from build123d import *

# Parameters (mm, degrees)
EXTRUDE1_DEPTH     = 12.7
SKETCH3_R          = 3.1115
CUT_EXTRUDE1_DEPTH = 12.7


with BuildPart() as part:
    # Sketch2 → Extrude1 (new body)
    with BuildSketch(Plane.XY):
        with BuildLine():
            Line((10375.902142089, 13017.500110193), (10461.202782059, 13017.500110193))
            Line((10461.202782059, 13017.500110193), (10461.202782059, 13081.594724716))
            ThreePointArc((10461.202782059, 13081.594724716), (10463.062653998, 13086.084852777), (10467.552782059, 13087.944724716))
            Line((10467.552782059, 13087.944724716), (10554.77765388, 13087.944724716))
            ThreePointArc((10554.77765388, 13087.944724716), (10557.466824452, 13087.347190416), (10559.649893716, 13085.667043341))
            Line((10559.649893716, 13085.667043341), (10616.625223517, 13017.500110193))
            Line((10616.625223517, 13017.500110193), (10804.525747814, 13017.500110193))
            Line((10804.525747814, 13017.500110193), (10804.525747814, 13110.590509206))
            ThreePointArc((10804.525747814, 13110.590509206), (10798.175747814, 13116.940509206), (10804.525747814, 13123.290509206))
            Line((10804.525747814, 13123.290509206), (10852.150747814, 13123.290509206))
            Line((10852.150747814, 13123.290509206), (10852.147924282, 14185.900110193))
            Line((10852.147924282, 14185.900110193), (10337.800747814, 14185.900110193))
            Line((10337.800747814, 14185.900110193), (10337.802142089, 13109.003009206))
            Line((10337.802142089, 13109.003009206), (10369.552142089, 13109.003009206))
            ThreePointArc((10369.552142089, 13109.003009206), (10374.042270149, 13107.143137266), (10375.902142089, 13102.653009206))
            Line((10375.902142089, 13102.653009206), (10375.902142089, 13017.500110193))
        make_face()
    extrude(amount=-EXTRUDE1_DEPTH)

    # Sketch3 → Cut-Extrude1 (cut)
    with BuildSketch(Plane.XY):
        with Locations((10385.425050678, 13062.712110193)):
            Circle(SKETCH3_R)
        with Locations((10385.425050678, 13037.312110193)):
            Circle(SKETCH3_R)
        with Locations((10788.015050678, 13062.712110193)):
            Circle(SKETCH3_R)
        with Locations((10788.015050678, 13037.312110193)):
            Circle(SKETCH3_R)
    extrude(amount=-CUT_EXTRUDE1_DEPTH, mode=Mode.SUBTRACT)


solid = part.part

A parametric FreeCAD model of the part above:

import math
import FreeCAD as App
import Part
import Sketcher
from FreeCAD import Vector
Q = App.Units.Quantity

doc = App.newDocument("Part")
body = doc.addObject("PartDesign::Body", "Body")

# Sketch on XY plane
sketch1 = body.newObject("Sketcher::SketchObject", "Sketch")
sketch1.AttachmentSupport = (doc.getObject("XY_Plane"), [""])
sketch1.MapMode = "FlatFace"
sketch1.addGeometry(Part.LineSegment(Vector(10375.902142, 13017.50011, 0), Vector(10461.202782, 13017.50011, 0)), False)
sketch1.addGeometry(Part.LineSegment(Vector(10461.202782, 13017.50011, 0), Vector(10461.202782, 13081.594725, 0)), False)
sketch1.addGeometry(Part.ArcOfCircle(Part.Circle(Vector(10467.552782, 13081.594725, 0), Vector(0, 0, 1), 6.35), math.radians(90), math.radians(180)), False)
sketch1.addGeometry(Part.LineSegment(Vector(10467.552782, 13087.944725, 0), Vector(10554.777654, 13087.944725, 0)), False)
sketch1.addGeometry(Part.ArcOfCircle(Part.Circle(Vector(10554.777654, 13081.594725, 0), Vector(0, 0, 1), 6.35), math.radians(39.889574), math.radians(90)), False)
sketch1.addGeometry(Part.LineSegment(Vector(10559.649894, 13085.667043, 0), Vector(10616.625224, 13017.50011, 0)), False)
sketch1.addGeometry(Part.LineSegment(Vector(10616.625224, 13017.50011, 0), Vector(10804.525748, 13017.50011, 0)), False)
sketch1.addGeometry(Part.LineSegment(Vector(10804.525748, 13017.50011, 0), Vector(10804.525748, 13110.590509, 0)), False)
sketch1.addGeometry(Part.ArcOfCircle(Part.Circle(Vector(10804.525748, 13116.940509, 0), Vector(0, 0, 1), 6.35), math.radians(90), math.radians(270)), False)
sketch1.addGeometry(Part.LineSegment(Vector(10804.525748, 13123.290509, 0), Vector(10852.150748, 13123.290509, 0)), False)
sketch1.addGeometry(Part.LineSegment(Vector(10852.150748, 13123.290509, 0), Vector(10852.147924, 14185.90011, 0)), False)
sketch1.addGeometry(Part.LineSegment(Vector(10852.147924, 14185.90011, 0), Vector(10337.800748, 14185.90011, 0)), False)
sketch1.addGeometry(Part.LineSegment(Vector(10337.800748, 14185.90011, 0), Vector(10337.802142, 13109.003009, 0)), False)
sketch1.addGeometry(Part.LineSegment(Vector(10337.802142, 13109.003009, 0), Vector(10369.552142, 13109.003009, 0)), False)
sketch1.addGeometry(Part.ArcOfCircle(Part.Circle(Vector(10369.552142, 13102.653009, 0), Vector(0, 0, 1), 6.35), math.radians(0), math.radians(90)), False)
sketch1.addGeometry(Part.LineSegment(Vector(10375.902142, 13102.653009, 0), Vector(10375.902142, 13017.50011, 0)), False)
sketch1.addConstraint(Sketcher.Constraint("Coincident", 0, 2, 1, 1))
sketch1.addConstraint(Sketcher.Constraint("Coincident", 1, 2, 2, 2))
sketch1.addConstraint(Sketcher.Constraint("Coincident", 2, 1, 3, 1))
sketch1.addConstraint(Sketcher.Constraint("Coincident", 3, 2, 4, 2))
sketch1.addConstraint(Sketcher.Constraint("Coincident", 4, 1, 5, 1))
sketch1.addConstraint(Sketcher.Constraint("Coincident", 5, 2, 6, 1))
sketch1.addConstraint(Sketcher.Constraint("Coincident", 6, 2, 7, 1))
sketch1.addConstraint(Sketcher.Constraint("Coincident", 7, 2, 8, 2))
sketch1.addConstraint(Sketcher.Constraint("Coincident", 8, 1, 9, 1))
sketch1.addConstraint(Sketcher.Constraint("Coincident", 9, 2, 10, 1))
sketch1.addConstraint(Sketcher.Constraint("Coincident", 10, 2, 11, 1))
sketch1.addConstraint(Sketcher.Constraint("Coincident", 11, 2, 12, 1))
sketch1.addConstraint(Sketcher.Constraint("Coincident", 12, 2, 13, 1))
sketch1.addConstraint(Sketcher.Constraint("Coincident", 13, 2, 14, 2))
sketch1.addConstraint(Sketcher.Constraint("Coincident", 14, 1, 15, 1))
sketch1.addConstraint(Sketcher.Constraint("Coincident", 15, 2, 0, 1))
sketch1.addConstraint(Sketcher.Constraint("Horizontal", 0))
sketch1.addConstraint(Sketcher.Constraint("Vertical", 1))
sketch1.addConstraint(Sketcher.Constraint("Horizontal", 3))
sketch1.addConstraint(Sketcher.Constraint("Horizontal", 6))
sketch1.addConstraint(Sketcher.Constraint("Vertical", 7))
sketch1.addConstraint(Sketcher.Constraint("Horizontal", 9))
sketch1.addConstraint(Sketcher.Constraint("Horizontal", 11))
sketch1.addConstraint(Sketcher.Constraint("Horizontal", 13))
sketch1.addConstraint(Sketcher.Constraint("Vertical", 15))
sketch1.addConstraint(Sketcher.Constraint("Radius", 2, Q("0.25 in")))
sketch1.addConstraint(Sketcher.Constraint("Radius", 4, Q("0.25 in")))
sketch1.addConstraint(Sketcher.Constraint("Radius", 8, Q("0.25 in")))
sketch1.addConstraint(Sketcher.Constraint("Radius", 14, Q("0.25 in")))
sketch1.addConstraint(Sketcher.Constraint("DistanceX", 13, 1, 13, 2, Q("1.25 in")))
sketch1.addConstraint(Sketcher.Constraint("DistanceX", 12, 2, 14, 1, Q("1.5 in")))
sketch1.addConstraint(Sketcher.Constraint("DistanceX", 9, 1, 9, 2, Q("1.875 in")))
sketch1.addConstraint(Sketcher.Constraint("DistanceX", 1, 2, 2, 1, Q("0.25 in")))
sketch1.addConstraint(Sketcher.Constraint("DistanceY", 1, 2, 2, 1, Q("0.25 in")))
sketch1.addConstraint(Sketcher.Constraint("DistanceY", 14, 1, 13, 2, Q("0.25 in")))
sketch1.addConstraint(Sketcher.Constraint("DistanceY", 14, 3, 8, 3, Q("0.5625 in")))
sketch1.addConstraint(Sketcher.Constraint("DistanceX", 8, 3, 9, 2, Q("1.875 in")))
sketch1.addConstraint(Sketcher.Constraint("DistanceX", 7, 2, 9, 2, Q("1.875 in")))
sketch1.addConstraint(Sketcher.Constraint("DistanceY", 7, 1, 7, 2, 93.090399))
sketch1.addConstraint(Sketcher.Constraint("DistanceY", 15, 2, 15, 1, 85.152899))
sketch1.addConstraint(Sketcher.Constraint("Distance", 5, 88.842101))
sketch1.addConstraint(Sketcher.Constraint("Distance", 10, 1062.609601))
sketch1.addConstraint(Sketcher.Constraint("DistanceX", 0, 1, 0, 2, 85.30064))
sketch1.addConstraint(Sketcher.Constraint("DistanceX", 3, 1, 3, 2, 87.224872))
sketch1.addConstraint(Sketcher.Constraint("DistanceX", 6, 1, 6, 2, 187.900524))
sketch1.addConstraint(Sketcher.Constraint("DistanceX", 11, 2, 11, 1, 514.347176))
sketch1.addConstraint(Sketcher.Constraint("DistanceY", 1, 1, 1, 2, 64.094615))
sketch1.addConstraint(Sketcher.Constraint("DistanceY", -1, 1, 8, 3, 13116.940509))
sketch1.addConstraint(Sketcher.Constraint("DistanceX", 2, 3, 4, 3, 87.224872))
sketch1.addConstraint(Sketcher.Constraint("DistanceX", 3, 2, 4, 1, 4.87224))
sketch1.addConstraint(Sketcher.Constraint("DistanceX", 3, 2, 10, 2, 297.37027))
sketch1.addConstraint(Sketcher.Constraint("DistanceX", -1, 1, 2, 3, 10467.552782))
pad1 = body.newObject("PartDesign::Pad", "Pad")
pad1.Profile = sketch1
pad1.Length = Q("0.5 in")
pad1.Reversed = True

# Sketch on XY plane
sketch2 = body.newObject("Sketcher::SketchObject", "Sketch001")
sketch2.AttachmentSupport = (doc.getObject("XY_Plane"), [""])
sketch2.MapMode = "FlatFace"
sketch2.addGeometry(Part.Circle(Vector(10385.425051, 13062.71211, 0), Vector(0, 0, 1), 3.1115), False)
sketch2.addGeometry(Part.Circle(Vector(10385.425051, 13037.31211, 0), Vector(0, 0, 1), 3.1115), False)
sketch2.addGeometry(Part.Circle(Vector(10788.015051, 13062.71211, 0), Vector(0, 0, 1), 3.1115), False)
sketch2.addGeometry(Part.Circle(Vector(10788.015051, 13037.31211, 0), Vector(0, 0, 1), 3.1115), False)
sketch2.addConstraint(Sketcher.Constraint("Equal", 0, 1))
sketch2.addConstraint(Sketcher.Constraint("Equal", 1, 2))
sketch2.addConstraint(Sketcher.Constraint("Equal", 2, 3))
sketch2.addConstraint(Sketcher.Constraint("Horizontal", 0, 3, 2, 3))
sketch2.addConstraint(Sketcher.Constraint("Horizontal", 1, 3, 3, 3))
sketch2.addConstraint(Sketcher.Constraint("Vertical", 0, 3, 1, 3))
sketch2.addConstraint(Sketcher.Constraint("Vertical", 2, 3, 3, 3))
sketch2.addConstraint(Sketcher.Constraint("Diameter", 0, Q("0.245 in")))
sketch2.addConstraint(Sketcher.Constraint("DistanceY", 1, 3, 0, 3, Q("1 in")))
sketch2.addConstraint(Sketcher.Constraint("DistanceX", 0, 3, 2, 3, Q("15.85 in")))
sketch2.addConstraint(Sketcher.Constraint("DistanceX", -1, 1, 0, 3, 10385.425051))
sketch2.addConstraint(Sketcher.Constraint("DistanceY", -1, 1, 0, 3, 13062.71211))
pocket1 = body.newObject("PartDesign::Pocket", "Pocket")
pocket1.Profile = sketch2
pocket1.Length = Q("0.5 in")

doc.recompute()
